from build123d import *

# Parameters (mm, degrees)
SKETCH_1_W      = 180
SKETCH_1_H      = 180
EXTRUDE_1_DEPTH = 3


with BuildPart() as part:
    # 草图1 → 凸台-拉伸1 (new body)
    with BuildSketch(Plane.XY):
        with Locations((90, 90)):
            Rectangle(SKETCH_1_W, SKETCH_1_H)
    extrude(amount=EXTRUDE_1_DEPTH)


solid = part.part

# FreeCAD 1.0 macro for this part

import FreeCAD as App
import Part
import Sketcher
from FreeCAD import Vector

doc = App.newDocument("Part")
body = doc.addObject("PartDesign::Body", "Body")

# Sketch on XY plane
sketch1 = body.newObject("Sketcher::SketchObject", "Sketch")
sketch1.AttachmentSupport = (doc.getObject("XY_Plane"), [""])
sketch1.MapMode = "FlatFace"
sketch1.addGeometry([
    Part.LineSegment(Vector(0, 180, 0), Vector(0, 0, 0)),
    Part.LineSegment(Vector(0, 0, 0), Vector(180, 0, 0)),
    Part.LineSegment(Vector(180, 0, 0), Vector(180, 180, 0)),
    Part.LineSegment(Vector(180, 180, 0), Vector(0, 180, 0)),
], False)
sketch1.addConstraint([
    Sketcher.Constraint("Coincident", 0, 2, 1, 1),
    Sketcher.Constraint("Coincident", 1, 2, 2, 1),
    Sketcher.Constraint("Coincident", 2, 2, 3, 1),
    Sketcher.Constraint("Coincident", 3, 2, 0, 1),
    Sketcher.Constraint("Vertical", 0),
    Sketcher.Constraint("Horizontal", 1),
    Sketcher.Constraint("Vertical", 2),
    Sketcher.Constraint("Horizontal", 3),
    Sketcher.Constraint("Coincident", 0, 2, -1, 1),
    Sketcher.Constraint("Equal", 3, 0),
    Sketcher.Constraint("DistanceX", 1, 1, 1, 2, 180.0),
])
pad1 = body.newObject("PartDesign::Pad", "Pad")
pad1.Profile = sketch1
pad1.Length = 3

doc.recompute()
